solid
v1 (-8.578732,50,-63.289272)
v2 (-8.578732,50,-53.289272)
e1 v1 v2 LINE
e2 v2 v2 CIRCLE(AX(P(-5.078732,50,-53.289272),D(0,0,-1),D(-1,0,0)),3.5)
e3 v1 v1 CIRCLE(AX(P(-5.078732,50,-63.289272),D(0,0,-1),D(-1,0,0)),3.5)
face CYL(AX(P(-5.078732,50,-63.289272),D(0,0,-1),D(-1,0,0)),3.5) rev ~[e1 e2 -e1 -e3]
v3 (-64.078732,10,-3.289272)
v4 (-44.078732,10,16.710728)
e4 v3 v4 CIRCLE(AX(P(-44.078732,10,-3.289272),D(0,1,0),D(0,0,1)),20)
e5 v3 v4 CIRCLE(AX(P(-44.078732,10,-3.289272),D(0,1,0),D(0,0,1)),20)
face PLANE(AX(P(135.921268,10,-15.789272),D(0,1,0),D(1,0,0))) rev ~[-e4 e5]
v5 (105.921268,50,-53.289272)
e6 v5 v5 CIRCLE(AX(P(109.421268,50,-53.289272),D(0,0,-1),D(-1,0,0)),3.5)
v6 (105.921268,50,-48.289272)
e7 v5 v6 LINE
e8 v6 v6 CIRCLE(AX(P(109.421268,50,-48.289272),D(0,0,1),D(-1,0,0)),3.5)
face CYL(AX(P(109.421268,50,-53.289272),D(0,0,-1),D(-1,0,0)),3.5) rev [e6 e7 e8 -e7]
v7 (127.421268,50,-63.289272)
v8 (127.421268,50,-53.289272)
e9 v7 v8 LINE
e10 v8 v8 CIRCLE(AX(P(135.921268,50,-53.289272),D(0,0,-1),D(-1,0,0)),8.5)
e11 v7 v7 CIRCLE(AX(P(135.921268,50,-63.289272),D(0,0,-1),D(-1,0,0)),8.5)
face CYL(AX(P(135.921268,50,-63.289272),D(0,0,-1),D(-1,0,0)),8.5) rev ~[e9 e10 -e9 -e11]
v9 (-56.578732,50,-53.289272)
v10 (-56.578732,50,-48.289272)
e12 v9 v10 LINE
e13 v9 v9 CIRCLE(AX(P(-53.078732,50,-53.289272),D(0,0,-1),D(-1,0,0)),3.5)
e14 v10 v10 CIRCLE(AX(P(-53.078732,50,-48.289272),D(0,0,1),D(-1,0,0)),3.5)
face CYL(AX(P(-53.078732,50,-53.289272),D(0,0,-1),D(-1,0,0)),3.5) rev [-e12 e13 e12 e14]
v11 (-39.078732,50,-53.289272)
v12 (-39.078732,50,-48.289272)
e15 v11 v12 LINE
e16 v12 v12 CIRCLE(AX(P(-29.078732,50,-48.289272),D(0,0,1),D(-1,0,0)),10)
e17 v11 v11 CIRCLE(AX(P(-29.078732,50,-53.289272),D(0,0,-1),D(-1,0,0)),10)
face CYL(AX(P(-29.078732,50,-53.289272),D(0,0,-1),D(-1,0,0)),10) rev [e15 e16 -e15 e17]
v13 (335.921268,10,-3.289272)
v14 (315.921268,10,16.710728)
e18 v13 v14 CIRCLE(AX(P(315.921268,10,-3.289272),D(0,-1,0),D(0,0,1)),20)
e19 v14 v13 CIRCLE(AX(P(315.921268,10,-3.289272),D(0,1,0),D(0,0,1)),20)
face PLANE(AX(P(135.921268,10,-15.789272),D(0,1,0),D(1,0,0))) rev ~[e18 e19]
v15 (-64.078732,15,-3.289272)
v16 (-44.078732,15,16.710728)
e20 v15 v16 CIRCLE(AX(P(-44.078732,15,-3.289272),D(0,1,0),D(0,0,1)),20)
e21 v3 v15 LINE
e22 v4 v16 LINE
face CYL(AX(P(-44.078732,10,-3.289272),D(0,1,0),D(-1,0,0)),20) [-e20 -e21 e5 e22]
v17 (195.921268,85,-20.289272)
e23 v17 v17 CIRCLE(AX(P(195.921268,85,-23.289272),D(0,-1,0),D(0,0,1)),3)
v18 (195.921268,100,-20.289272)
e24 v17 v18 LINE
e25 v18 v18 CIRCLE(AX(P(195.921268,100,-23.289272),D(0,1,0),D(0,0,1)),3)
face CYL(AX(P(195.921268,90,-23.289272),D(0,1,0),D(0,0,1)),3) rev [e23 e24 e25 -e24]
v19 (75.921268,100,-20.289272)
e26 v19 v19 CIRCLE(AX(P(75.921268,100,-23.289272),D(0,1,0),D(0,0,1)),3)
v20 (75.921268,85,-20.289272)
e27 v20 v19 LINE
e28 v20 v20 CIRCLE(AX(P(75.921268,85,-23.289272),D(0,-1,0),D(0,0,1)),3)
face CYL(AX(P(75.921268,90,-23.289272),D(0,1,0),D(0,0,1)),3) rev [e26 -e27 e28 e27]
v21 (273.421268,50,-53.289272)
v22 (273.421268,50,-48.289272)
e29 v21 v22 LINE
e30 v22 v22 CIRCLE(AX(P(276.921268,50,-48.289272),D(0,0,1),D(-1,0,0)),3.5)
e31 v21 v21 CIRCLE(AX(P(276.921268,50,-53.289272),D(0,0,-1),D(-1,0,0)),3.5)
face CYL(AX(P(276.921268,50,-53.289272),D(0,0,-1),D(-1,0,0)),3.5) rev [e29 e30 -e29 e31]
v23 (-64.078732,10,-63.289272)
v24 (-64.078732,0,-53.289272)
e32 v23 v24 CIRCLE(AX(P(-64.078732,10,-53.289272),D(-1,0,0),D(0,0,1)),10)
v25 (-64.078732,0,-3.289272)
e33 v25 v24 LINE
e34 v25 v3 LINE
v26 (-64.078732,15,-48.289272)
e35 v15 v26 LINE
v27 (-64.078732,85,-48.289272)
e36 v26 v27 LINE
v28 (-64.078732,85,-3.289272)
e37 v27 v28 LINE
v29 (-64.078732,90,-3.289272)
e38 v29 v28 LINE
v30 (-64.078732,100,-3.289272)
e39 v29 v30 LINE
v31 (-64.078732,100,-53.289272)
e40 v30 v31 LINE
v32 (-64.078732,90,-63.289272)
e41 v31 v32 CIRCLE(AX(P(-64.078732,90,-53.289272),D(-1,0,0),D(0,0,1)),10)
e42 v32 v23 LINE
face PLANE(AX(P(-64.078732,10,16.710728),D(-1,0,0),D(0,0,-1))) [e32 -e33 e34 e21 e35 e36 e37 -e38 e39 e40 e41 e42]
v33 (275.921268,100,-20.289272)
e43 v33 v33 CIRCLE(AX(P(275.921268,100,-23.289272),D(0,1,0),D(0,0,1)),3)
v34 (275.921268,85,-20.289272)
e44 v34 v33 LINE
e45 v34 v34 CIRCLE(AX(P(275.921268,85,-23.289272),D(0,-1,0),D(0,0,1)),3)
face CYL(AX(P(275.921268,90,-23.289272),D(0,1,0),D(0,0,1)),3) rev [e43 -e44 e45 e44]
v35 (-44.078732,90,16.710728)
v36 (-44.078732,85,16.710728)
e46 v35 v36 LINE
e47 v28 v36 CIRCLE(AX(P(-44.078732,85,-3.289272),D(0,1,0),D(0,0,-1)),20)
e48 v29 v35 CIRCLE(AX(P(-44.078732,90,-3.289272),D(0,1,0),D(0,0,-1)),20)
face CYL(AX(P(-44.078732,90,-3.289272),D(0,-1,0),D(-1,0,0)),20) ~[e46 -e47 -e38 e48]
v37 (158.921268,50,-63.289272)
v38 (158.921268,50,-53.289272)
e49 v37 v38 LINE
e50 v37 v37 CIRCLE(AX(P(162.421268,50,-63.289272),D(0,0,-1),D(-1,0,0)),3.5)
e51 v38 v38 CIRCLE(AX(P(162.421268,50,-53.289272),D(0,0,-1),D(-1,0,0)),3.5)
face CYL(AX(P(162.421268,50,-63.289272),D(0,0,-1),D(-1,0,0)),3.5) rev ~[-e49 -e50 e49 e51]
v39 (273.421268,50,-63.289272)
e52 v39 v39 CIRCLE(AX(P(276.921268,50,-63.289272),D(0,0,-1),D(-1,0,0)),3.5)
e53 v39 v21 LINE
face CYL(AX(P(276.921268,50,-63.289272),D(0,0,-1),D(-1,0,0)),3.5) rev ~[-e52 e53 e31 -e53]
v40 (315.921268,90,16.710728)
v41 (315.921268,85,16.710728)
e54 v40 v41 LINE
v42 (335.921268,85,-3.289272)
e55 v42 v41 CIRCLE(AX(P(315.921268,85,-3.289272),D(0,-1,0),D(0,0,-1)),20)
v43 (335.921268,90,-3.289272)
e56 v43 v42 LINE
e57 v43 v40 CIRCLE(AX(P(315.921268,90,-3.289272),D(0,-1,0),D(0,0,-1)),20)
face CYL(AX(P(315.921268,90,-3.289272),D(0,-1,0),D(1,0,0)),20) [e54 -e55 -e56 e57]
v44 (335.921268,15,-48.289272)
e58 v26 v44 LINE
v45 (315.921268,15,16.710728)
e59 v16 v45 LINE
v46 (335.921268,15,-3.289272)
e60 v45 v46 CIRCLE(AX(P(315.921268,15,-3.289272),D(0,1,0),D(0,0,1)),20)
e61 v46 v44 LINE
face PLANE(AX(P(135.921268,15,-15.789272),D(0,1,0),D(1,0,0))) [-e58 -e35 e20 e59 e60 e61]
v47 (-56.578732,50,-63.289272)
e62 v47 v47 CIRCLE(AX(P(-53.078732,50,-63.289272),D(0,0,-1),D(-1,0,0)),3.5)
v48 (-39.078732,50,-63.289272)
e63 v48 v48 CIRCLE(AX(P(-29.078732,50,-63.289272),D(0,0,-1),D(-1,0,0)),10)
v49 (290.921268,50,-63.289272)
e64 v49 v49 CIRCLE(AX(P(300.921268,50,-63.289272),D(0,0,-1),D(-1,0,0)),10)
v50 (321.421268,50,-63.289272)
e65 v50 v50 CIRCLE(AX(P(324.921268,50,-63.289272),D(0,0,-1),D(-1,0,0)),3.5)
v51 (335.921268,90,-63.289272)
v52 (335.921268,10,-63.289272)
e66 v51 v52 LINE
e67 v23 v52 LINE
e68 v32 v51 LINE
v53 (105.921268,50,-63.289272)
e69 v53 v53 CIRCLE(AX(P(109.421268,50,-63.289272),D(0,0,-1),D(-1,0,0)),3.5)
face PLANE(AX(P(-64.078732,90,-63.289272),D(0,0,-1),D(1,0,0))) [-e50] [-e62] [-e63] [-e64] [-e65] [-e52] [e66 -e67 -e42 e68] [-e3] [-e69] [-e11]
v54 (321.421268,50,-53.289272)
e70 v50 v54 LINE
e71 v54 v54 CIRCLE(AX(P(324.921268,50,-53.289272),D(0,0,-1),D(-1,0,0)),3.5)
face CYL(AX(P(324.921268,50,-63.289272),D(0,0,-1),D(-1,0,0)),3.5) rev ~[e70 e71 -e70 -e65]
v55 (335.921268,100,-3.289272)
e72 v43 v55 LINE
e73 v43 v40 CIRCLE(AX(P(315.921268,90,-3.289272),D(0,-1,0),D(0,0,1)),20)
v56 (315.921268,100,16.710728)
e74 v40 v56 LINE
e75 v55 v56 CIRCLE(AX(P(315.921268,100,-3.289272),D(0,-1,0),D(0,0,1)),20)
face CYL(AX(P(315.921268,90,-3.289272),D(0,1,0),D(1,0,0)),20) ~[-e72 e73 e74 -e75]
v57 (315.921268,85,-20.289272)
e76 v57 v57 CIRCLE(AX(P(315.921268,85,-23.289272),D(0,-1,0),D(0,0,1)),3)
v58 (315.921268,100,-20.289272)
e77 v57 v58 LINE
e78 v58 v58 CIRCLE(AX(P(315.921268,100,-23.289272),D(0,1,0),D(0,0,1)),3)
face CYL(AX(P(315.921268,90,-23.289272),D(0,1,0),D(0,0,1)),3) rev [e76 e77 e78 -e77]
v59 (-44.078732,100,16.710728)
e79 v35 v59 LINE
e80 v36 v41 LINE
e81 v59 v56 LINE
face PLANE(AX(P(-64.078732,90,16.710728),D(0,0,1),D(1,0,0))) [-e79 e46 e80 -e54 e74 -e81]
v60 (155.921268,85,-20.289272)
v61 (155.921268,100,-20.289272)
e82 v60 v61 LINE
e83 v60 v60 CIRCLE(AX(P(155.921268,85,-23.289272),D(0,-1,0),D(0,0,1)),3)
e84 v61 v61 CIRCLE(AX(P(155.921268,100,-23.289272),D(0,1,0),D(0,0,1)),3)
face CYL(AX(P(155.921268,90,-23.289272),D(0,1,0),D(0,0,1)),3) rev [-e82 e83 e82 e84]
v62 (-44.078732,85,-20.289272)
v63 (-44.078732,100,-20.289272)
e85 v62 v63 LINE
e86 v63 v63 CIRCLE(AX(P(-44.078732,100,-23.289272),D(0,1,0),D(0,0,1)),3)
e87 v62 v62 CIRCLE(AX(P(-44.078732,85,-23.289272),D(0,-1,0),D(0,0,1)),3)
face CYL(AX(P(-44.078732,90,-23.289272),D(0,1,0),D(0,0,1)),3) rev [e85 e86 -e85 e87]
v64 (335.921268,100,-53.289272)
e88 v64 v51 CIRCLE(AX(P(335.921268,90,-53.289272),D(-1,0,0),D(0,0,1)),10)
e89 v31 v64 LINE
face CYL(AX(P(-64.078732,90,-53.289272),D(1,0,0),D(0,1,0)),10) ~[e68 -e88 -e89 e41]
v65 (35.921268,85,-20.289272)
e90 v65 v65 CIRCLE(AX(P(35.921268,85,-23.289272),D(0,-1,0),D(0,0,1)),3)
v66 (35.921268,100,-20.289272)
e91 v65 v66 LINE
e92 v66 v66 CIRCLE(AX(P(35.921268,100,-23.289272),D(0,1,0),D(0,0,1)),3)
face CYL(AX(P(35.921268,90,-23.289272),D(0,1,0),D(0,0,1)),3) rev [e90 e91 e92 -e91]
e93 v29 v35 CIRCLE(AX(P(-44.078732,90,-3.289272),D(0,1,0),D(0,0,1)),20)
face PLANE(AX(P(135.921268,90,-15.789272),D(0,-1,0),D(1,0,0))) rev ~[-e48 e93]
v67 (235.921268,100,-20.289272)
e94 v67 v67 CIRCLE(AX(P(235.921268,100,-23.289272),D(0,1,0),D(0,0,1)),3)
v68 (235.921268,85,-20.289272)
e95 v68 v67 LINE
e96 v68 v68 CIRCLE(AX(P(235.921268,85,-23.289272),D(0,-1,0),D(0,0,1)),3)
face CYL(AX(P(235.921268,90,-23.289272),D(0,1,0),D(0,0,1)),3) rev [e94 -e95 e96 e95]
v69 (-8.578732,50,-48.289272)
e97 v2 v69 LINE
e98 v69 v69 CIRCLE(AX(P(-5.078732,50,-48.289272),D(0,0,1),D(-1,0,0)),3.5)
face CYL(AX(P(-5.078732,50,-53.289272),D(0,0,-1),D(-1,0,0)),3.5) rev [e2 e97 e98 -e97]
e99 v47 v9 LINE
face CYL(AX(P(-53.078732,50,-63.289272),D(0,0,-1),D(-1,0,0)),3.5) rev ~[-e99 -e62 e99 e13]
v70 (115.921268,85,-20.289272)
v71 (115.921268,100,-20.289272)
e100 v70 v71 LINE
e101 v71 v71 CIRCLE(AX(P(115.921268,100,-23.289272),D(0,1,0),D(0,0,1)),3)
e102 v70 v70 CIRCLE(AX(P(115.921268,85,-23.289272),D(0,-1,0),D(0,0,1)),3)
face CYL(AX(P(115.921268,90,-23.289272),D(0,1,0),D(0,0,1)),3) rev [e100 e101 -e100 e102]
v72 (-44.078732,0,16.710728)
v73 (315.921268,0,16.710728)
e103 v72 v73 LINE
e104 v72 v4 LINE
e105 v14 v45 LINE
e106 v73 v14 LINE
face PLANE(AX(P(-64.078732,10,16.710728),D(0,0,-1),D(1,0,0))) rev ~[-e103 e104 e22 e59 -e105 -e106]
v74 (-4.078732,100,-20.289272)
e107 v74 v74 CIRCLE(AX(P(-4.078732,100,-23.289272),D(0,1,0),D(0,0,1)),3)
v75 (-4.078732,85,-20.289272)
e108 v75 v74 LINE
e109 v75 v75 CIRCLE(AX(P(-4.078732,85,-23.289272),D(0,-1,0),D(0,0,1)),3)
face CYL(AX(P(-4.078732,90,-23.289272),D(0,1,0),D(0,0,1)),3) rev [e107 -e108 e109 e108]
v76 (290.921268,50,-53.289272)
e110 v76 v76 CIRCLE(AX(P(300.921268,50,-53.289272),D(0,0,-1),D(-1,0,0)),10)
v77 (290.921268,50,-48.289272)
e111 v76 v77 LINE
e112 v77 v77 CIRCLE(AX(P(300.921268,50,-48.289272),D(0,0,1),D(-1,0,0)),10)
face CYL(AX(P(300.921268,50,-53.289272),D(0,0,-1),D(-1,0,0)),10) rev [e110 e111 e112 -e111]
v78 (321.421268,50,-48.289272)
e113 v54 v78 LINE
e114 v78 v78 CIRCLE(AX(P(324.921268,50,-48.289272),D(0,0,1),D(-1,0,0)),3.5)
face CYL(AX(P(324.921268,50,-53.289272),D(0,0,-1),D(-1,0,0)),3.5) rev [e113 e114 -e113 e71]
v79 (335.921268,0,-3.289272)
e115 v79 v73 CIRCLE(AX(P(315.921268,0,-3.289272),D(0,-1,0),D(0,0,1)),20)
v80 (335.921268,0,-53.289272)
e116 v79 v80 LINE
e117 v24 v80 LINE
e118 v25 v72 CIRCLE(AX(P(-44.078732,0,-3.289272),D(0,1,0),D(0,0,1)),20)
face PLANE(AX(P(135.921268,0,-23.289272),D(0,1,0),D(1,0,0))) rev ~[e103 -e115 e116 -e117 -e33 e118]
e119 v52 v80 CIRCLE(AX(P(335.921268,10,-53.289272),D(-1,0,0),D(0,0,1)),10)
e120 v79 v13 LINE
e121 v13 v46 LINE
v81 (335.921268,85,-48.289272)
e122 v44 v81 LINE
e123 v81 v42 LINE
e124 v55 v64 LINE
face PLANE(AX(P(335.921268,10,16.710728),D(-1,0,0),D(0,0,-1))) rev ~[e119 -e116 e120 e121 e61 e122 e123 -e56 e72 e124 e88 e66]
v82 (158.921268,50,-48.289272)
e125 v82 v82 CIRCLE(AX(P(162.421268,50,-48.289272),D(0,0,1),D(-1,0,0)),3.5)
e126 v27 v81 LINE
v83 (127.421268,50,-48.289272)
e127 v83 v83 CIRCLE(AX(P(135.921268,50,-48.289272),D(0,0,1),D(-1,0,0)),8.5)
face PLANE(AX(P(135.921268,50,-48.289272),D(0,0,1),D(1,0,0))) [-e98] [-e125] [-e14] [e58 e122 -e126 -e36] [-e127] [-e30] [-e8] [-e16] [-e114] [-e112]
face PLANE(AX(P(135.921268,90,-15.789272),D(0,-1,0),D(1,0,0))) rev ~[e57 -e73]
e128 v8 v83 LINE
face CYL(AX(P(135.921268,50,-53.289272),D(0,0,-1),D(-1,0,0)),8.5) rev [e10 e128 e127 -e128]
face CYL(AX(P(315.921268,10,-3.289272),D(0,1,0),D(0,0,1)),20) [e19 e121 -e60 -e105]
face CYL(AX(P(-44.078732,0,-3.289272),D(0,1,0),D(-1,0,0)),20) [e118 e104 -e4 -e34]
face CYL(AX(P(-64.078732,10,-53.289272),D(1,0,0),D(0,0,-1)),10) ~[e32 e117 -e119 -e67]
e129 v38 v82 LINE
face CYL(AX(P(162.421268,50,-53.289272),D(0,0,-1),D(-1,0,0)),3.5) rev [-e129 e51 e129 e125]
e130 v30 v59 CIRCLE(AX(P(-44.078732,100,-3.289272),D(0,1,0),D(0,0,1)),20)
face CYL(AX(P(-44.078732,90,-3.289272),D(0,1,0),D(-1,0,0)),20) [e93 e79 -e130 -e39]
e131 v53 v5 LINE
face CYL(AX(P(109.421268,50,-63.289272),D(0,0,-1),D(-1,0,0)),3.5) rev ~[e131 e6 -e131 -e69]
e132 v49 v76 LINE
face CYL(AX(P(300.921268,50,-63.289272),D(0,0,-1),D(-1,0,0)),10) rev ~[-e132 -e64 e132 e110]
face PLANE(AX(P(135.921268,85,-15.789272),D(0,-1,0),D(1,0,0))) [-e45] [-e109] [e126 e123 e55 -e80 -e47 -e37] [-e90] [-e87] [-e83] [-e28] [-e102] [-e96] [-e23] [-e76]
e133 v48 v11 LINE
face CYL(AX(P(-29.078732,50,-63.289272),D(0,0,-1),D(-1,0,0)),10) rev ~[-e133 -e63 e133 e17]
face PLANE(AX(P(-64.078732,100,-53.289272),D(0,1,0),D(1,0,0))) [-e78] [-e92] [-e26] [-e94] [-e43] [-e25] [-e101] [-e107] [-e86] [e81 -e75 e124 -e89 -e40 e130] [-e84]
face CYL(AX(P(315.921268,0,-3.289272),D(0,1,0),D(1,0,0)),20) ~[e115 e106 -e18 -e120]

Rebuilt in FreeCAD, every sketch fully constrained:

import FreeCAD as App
import Part
import Sketcher
from FreeCAD import Vector
Q = App.Units.Quantity


def edges_at(feature, points):
    """Names of the edges that pass closest to the given points."""
    edges = feature.Shape.Edges
    near = lambda p: min(range(len(edges)), key=lambda i: edges[i].distToShape(Part.Vertex(*p))[0])
    return sorted({f"Edge{near(p) + 1}" for p in points})

doc = App.newDocument("Part")
params = doc.addObject("Spreadsheet::Sheet", "Params")
for row, (alias, value) in enumerate([
    ("sketch1_width", "400 mm"),
    ("sketch1_height", "80 mm"),
    ("pad1_length", "10 mm"),
    ("sketch2_width", "400 mm"),
    ("sketch2_height", "10 mm"),
    ("pad2_length", "80 mm"),
    ("sketch3_width", "400 mm"),
    ("sketch3_height", "10 mm"),
    ("pad3_length", "10 mm"),
    ("sketch4_width", "400 mm"),
    ("sketch4_height", "10 mm"),
    ("pad4_length", "70 mm"),
    ("fillet_radius", "20 mm"),
    ("fillet2_radius", "10 mm"),
    ("sketch5_diameter", "17 mm"),
    ("sketch5_diameter2", "7 mm"),
    ("sketch5_diameter3", "20 mm"),
    ("pocket1_length", "10 mm"),
    ("sketch6_diameter", "6 mm"),
    ("sketch7_diameter", "6 mm"),
    ("sketch8_diameter", "6 mm"),
    ("sketch9_diameter", "6 mm"),
    ("sketch10_diameter", "6 mm"),
    ("sketch11_diameter", "6 mm"),
    ("sketch12_diameter", "6 mm"),
    ("sketch13_diameter", "6 mm"),
    ("sketch14_diameter", "6 mm"),
    ("sketch15_diameter", "6 mm"),
    ("sketch16_diameter", "7 mm"),
    ("sketch16_diameter2", "20 mm"),
    ("sketch16_diameter3", "17 mm"),
    ("sketch16_width", "400 mm"),
    ("sketch16_height", "80 mm"),
    ("pad5_length", "5 mm"),
    ("sketch17_diameter", "6 mm"),
    ("sketch17_width", "400 mm"),
    ("sketch17_height", "65 mm"),
    ("pad6_length", "5 mm"),
    ("sketch18_width", "400 mm"),
    ("sketch18_height", "65 mm"),
    ("pad7_length", "5 mm"),
    ("fillet3_radius", "20 mm"),
], start=1):
    params.set(f"A{row}", alias)
    params.set(f"B{row}", "=" + value)
    params.setAlias(f"B{row}", alias)

body = doc.addObject("PartDesign::Body", "Body")

# Sketch on XZ plane
sketch1 = body.newObject("Sketcher::SketchObject", "Sketch")
sketch1.AttachmentSupport = (doc.getObject("XZ_Plane"), [""])
sketch1.MapMode = "FlatFace"
sketch1.addGeometry([
    Part.LineSegment(Vector(-64, -63, 0), Vector(-64, 17, 0)),
    Part.LineSegment(Vector(-64, 17, 0), Vector(336, 17, 0)),
    Part.LineSegment(Vector(336, 17, 0), Vector(336, -63, 0)),
    Part.LineSegment(Vector(336, -63, 0), Vector(-64, -63, 0)),
], False)
sketch1.addConstraint([
    Sketcher.Constraint("Coincident", 0, 2, 1, 1),
    Sketcher.Constraint("Coincident", 1, 2, 2, 1),
    Sketcher.Constraint("Coincident", 2, 2, 3, 1),
    Sketcher.Constraint("Coincident", 3, 2, 0, 1),
    Sketcher.Constraint("Vertical", 0),
    Sketcher.Constraint("Horizontal", 1),
    Sketcher.Constraint("Vertical", 2),
    Sketcher.Constraint("Horizontal", 3),
    Sketcher.Constraint("DistanceX", 1, 1, 1, 2, Q("400 mm")),
    Sketcher.Constraint("DistanceY", 0, 1, 0, 2, Q("80 mm")),
    Sketcher.Constraint("DistanceX", 0, 2, -1, 1, Q("64.078732 mm")),
    Sketcher.Constraint("DistanceY", -1, 1, 0, 2, Q("16.710728 mm")),
])
sketch1.setExpression("Constraints[8]", "Params.sketch1_width")
sketch1.setExpression("Constraints[9]", "Params.sketch1_height")
pad1 = body.newObject("PartDesign::Pad", "Pad")
pad1.Profile = sketch1
pad1.setExpression("Length", "Params.pad1_length")
pad1.Reversed = True

# Sketch on XZ plane
sketch2 = body.newObject("Sketcher::SketchObject", "Sketch001")
sketch2.AttachmentSupport = (doc.getObject("XZ_Plane"), [""])
sketch2.MapMode = "FlatFace"
sketch2.AttachmentOffset = App.Placement(Vector(0, 0, -10), App.Rotation())
sketch2.addGeometry([
    Part.LineSegment(Vector(-64, -63, 0), Vector(-64, -53, 0)),
    Part.LineSegment(Vector(-64, -53, 0), Vector(336, -53, 0)),
    Part.LineSegment(Vector(336, -53, 0), Vector(336, -63, 0)),
    Part.LineSegment(Vector(336, -63, 0), Vector(-64, -63, 0)),
], False)
sketch2.addConstraint([
    Sketcher.Constraint("Coincident", 0, 2, 1, 1),
    Sketcher.Constraint("Coincident", 1, 2, 2, 1),
    Sketcher.Constraint("Coincident", 2, 2, 3, 1),
    Sketcher.Constraint("Coincident", 3, 2, 0, 1),
    Sketcher.Constraint("Vertical", 0),
    Sketcher.Constraint("Horizontal", 1),
    Sketcher.Constraint("Vertical", 2),
    Sketcher.Constraint("Horizontal", 3),
    Sketcher.Constraint("DistanceX", 1, 1, 1, 2, Q("400 mm")),
    Sketcher.Constraint("DistanceY", 0, 1, 0, 2, Q("10 mm")),
    Sketcher.Constraint("DistanceX", 0, 2, -1, 1, Q("64.078732 mm")),
    Sketcher.Constraint("DistanceY", 0, 2, -1, 1, Q("53.289272 mm")),
])
sketch2.setExpression("Constraints[8]", "Params.sketch2_width")
sketch2.setExpression("Constraints[9]", "Params.sketch2_height")
pad2 = body.newObject("PartDesign::Pad", "Pad001")
pad2.Profile = sketch2
pad2.setExpression("Length", "Params.pad2_length")
pad2.Reversed = True

# Sketch on XZ plane
sketch3 = body.newObject("Sketcher::SketchObject", "Sketch002")
sketch3.AttachmentSupport = (doc.getObject("XZ_Plane"), [""])
sketch3.MapMode = "FlatFace"
sketch3.AttachmentOffset = App.Placement(Vector(0, 0, -90), App.Rotation())
sketch3.addGeometry([
    Part.LineSegment(Vector(-64, -63, 0), Vector(-64, -53, 0)),
    Part.LineSegment(Vector(-64, -53, 0), Vector(336, -53, 0)),
    Part.LineSegment(Vector(336, -53, 0), Vector(336, -63, 0)),
    Part.LineSegment(Vector(336, -63, 0), Vector(-64, -63, 0)),
], False)
sketch3.addConstraint([
    Sketcher.Constraint("Coincident", 0, 2, 1, 1),
    Sketcher.Constraint("Coincident", 1, 2, 2, 1),
    Sketcher.Constraint("Coincident", 2, 2, 3, 1),
    Sketcher.Constraint("Coincident", 3, 2, 0, 1),
    Sketcher.Constraint("Vertical", 0),
    Sketcher.Constraint("Horizontal", 1),
    Sketcher.Constraint("Vertical", 2),
    Sketcher.Constraint("Horizontal", 3),
    Sketcher.Constraint("DistanceX", 1, 1, 1, 2, Q("400 mm")),
    Sketcher.Constraint("DistanceY", 0, 1, 0, 2, Q("10 mm")),
    Sketcher.Constraint("DistanceX", 0, 2, -1, 1, Q("64.078732 mm")),
    Sketcher.Constraint("DistanceY", 0, 2, -1, 1, Q("53.289272 mm")),
])
sketch3.setExpression("Constraints[8]", "Params.sketch3_width")
sketch3.setExpression("Constraints[9]", "Params.sketch3_height")
pad3 = body.newObject("PartDesign::Pad", "Pad002")
pad3.Profile = sketch3
pad3.setExpression("Length", "Params.pad3_length")
pad3.Reversed = True

# Sketch on XY plane
sketch4 = body.newObject("Sketcher::SketchObject", "Sketch003")
sketch4.AttachmentSupport = (doc.getObject("XY_Plane"), [""])
sketch4.MapMode = "FlatFace"
sketch4.AttachmentOffset = App.Placement(Vector(0, 0, -53.289272), App.Rotation())
sketch4.addGeometry([
    Part.LineSegment(Vector(-64, 100, 0), Vector(-64, 90, 0)),
    Part.LineSegment(Vector(-64, 90, 0), Vector(336, 90, 0)),
    Part.LineSegment(Vector(336, 90, 0), Vector(336, 100, 0)),
    Part.LineSegment(Vector(336, 100, 0), Vector(-64, 100, 0)),
], False)
sketch4.addConstraint([
    Sketcher.Constraint("Coincident", 0, 2, 1, 1),
    Sketcher.Constraint("Coincident", 1, 2, 2, 1),
    Sketcher.Constraint("Coincident", 2, 2, 3, 1),
    Sketcher.Constraint("Coincident", 3, 2, 0, 1),
    Sketcher.Constraint("Vertical", 0),
    Sketcher.Constraint("Horizontal", 1),
    Sketcher.Constraint("Vertical", 2),
    Sketcher.Constraint("Horizontal", 3),
    Sketcher.Constraint("DistanceX", 1, 1, 1, 2, Q("400 mm")),
    Sketcher.Constraint("DistanceY", 0, 2, 0, 1, Q("10 mm")),
    Sketcher.Constraint("DistanceY", -1, 1, 0, 2, Q("90 mm")),
    Sketcher.Constraint("DistanceX", 0, 2, -1, 1, Q("64.078732 mm")),
])
sketch4.setExpression("Constraints[8]", "Params.sketch4_width")
sketch4.setExpression("Constraints[9]", "Params.sketch4_height")
pad4 = body.newObject("PartDesign::Pad", "Pad003")
pad4.Profile = sketch4
pad4.setExpression("Length", "Params.pad4_length")
doc.recompute()

fillet = body.newObject("PartDesign::Fillet", "Fillet")
fillet.Base = (pad4, edges_at(pad4, [
    (-64.079, 95, 16.711),
    (335.921, 95, 16.711),
    (-64.079, 5, 16.711),
    (335.921, 5, 16.711),
]))
fillet.setExpression("Radius", "Params.fillet_radius")
doc.recompute()

fillet2 = body.newObject("PartDesign::Fillet", "Fillet001")
fillet2.Base = (fillet, edges_at(fillet, [(135.921, 100, -63.289), (135.921, 0, -63.289)]))
fillet2.setExpression("Radius", "Params.fillet2_radius")

# Sketch on XY plane
sketch5 = body.newObject("Sketcher::SketchObject", "Sketch004")
sketch5.AttachmentSupport = (doc.getObject("XY_Plane"), [""])
sketch5.MapMode = "FlatFace"
sketch5.AttachmentOffset = App.Placement(Vector(0, 0, -63.289272), App.Rotation())
sketch5.addGeometry([
    Part.Circle(Vector(135.9, 50, 0), Vector(0, 0, 1), 8.5),  # 0
    Part.Circle(Vector(109.4, 50, 0), Vector(0, 0, 1), 3.5),  # 1
    Part.Circle(Vector(162.4, 50, 0), Vector(0, 0, 1), 3.5),  # 2
    Part.Circle(Vector(324.9, 50, 0), Vector(0, 0, 1), 3.5),  # 3
    Part.Circle(Vector(300.9, 50, 0), Vector(0, 0, 1), 10),  # 4
    Part.Circle(Vector(276.9, 50, 0), Vector(0, 0, 1), 3.5),  # 5
    Part.Circle(Vector(-53.1, 50, 0), Vector(0, 0, 1), 3.5),  # 6
    Part.Circle(Vector(-29.1, 50, 0), Vector(0, 0, 1), 10),  # 7
    Part.Circle(Vector(-5.1, 50, 0), Vector(0, 0, 1), 3.5),  # 8
], False)
sketch5.addConstraint([
    Sketcher.Constraint("Equal", 1, 2),
    Sketcher.Constraint("Equal", 2, 3),
    Sketcher.Constraint("Equal", 3, 5),
    Sketcher.Constraint("Equal", 5, 6),
    Sketcher.Constraint("Equal", 4, 7),
    Sketcher.Constraint("Equal", 6, 8),
    Sketcher.Constraint("Horizontal", 0, 3, 1, 3),
    Sketcher.Constraint("Horizontal", 1, 3, 2, 3),
    Sketcher.Constraint("Horizontal", 2, 3, 3, 3),
    Sketcher.Constraint("Horizontal", 3, 3, 4, 3),
    Sketcher.Constraint("Horizontal", 4, 3, 5, 3),
    Sketcher.Constraint("Horizontal", 5, 3, 6, 3),
    Sketcher.Constraint("Horizontal", 6, 3, 7, 3),
    Sketcher.Constraint("Horizontal", 7, 3, 8, 3),
    Sketcher.Constraint("Diameter", 0, Q("17 mm")),
    Sketcher.Constraint("Diameter", 1, Q("7 mm")),
    Sketcher.Constraint("Diameter", 4, Q("20 mm")),
    Sketcher.Constraint("DistanceY", -1, 1, 0, 3, Q("50 mm")),
    Sketcher.Constraint("DistanceX", 1, 3, 2, 3, Q("53 mm")),
    Sketcher.Constraint("DistanceX", 0, 3, 3, 3, Q("189 mm")),
    Sketcher.Constraint("DistanceX", 4, 3, 3, 3, Q("24 mm")),
    Sketcher.Constraint("DistanceX", 5, 3, 4, 3, Q("24 mm")),
    Sketcher.Constraint("DistanceX", 6, 3, 0, 3, Q("189 mm")),
    Sketcher.Constraint("DistanceX", 6, 3, 7, 3, Q("24 mm")),
    Sketcher.Constraint("DistanceX", 7, 3, 8, 3, Q("24 mm")),
    Sketcher.Constraint("DistanceX", 1, 3, 0, 3, Q("26.5 mm")),
    Sketcher.Constraint("DistanceX", -1, 1, 0, 3, Q("135.921268 mm")),
])
sketch5.setExpression("Constraints[14]", "Params.sketch5_diameter")
sketch5.setExpression("Constraints[15]", "Params.sketch5_diameter2")
sketch5.setExpression("Constraints[16]", "Params.sketch5_diameter3")
pocket1 = body.newObject("PartDesign::Pocket", "Pocket")
pocket1.Profile = sketch5
pocket1.setExpression("Length", "Params.pocket1_length")
pocket1.Reversed = True

# Sketch on XZ plane
sketch6 = body.newObject("Sketcher::SketchObject", "Sketch005")
sketch6.AttachmentSupport = (doc.getObject("XZ_Plane"), [""])
sketch6.MapMode = "FlatFace"
sketch6.AttachmentOffset = App.Placement(Vector(0, 0, -100), App.Rotation())
sketch6.addGeometry(Part.Circle(Vector(-44.1, -23.3, 0), Vector(0, 0, 1), 3), False)
sketch6.addConstraint([
    Sketcher.Constraint("Diameter", 0, Q("6 mm")),
    Sketcher.Constraint("DistanceX", 0, 3, -1, 1, Q("44.078732 mm")),
    Sketcher.Constraint("DistanceY", 0, 3, -1, 1, Q("23.289272 mm")),
])
sketch6.setExpression("Constraints[0]", "Params.sketch6_diameter")
pocket2 = body.newObject("PartDesign::Pocket", "Pocket001")
pocket2.Profile = sketch6
pocket2.Type = "UpToFirst"
pocket2.Reversed = True

# Sketch on XZ plane
sketch7 = body.newObject("Sketcher::SketchObject", "Sketch006")
sketch7.AttachmentSupport = (doc.getObject("XZ_Plane"), [""])
sketch7.MapMode = "FlatFace"
sketch7.AttachmentOffset = App.Placement(Vector(0, 0, -100), App.Rotation())
sketch7.addGeometry(Part.Circle(Vector(-4.1, -23.3, 0), Vector(0, 0, 1), 3), False)
sketch7.addConstraint([
    Sketcher.Constraint("Diameter", 0, Q("6 mm")),
    Sketcher.Constraint("DistanceX", 0, 3, -1, 1, Q("4.078732 mm")),
    Sketcher.Constraint("DistanceY", 0, 3, -1, 1, Q("23.289272 mm")),
])
sketch7.setExpression("Constraints[0]", "Params.sketch7_diameter")
pocket3 = body.newObject("PartDesign::Pocket", "Pocket002")
pocket3.Profile = sketch7
pocket3.Type = "UpToFirst"
pocket3.Reversed = True

# Sketch on XZ plane
sketch8 = body.newObject("Sketcher::SketchObject", "Sketch007")
sketch8.AttachmentSupport = (doc.getObject("XZ_Plane"), [""])
sketch8.MapMode = "FlatFace"
sketch8.AttachmentOffset = App.Placement(Vector(0, 0, -100), App.Rotation())
sketch8.addGeometry(Part.Circle(Vector(35.9, -23.3, 0), Vector(0, 0, 1), 3), False)
sketch8.addConstraint([
    Sketcher.Constraint("Diameter", 0, Q("6 mm")),
    Sketcher.Constraint("DistanceX", -1, 1, 0, 3, Q("35.921268 mm")),
    Sketcher.Constraint("DistanceY", 0, 3, -1, 1, Q("23.289272 mm")),
])
sketch8.setExpression("Constraints[0]", "Params.sketch8_diameter")
pocket4 = body.newObject("PartDesign::Pocket", "Pocket003")
pocket4.Profile = sketch8
pocket4.Type = "UpToFirst"
pocket4.Reversed = True

# Sketch on XZ plane
sketch9 = body.newObject("Sketcher::SketchObject", "Sketch008")
sketch9.AttachmentSupport = (doc.getObject("XZ_Plane"), [""])
sketch9.MapMode = "FlatFace"
sketch9.AttachmentOffset = App.Placement(Vector(0, 0, -100), App.Rotation())
sketch9.addGeometry(Part.Circle(Vector(75.9, -23.3, 0), Vector(0, 0, 1), 3), False)
sketch9.addConstraint([
    Sketcher.Constraint("Diameter", 0, Q("6 mm")),
    Sketcher.Constraint("DistanceX", -1, 1, 0, 3, Q("75.921268 mm")),
    Sketcher.Constraint("DistanceY", 0, 3, -1, 1, Q("23.289272 mm")),
])
sketch9.setExpression("Constraints[0]", "Params.sketch9_diameter")
pocket5 = body.newObject("PartDesign::Pocket", "Pocket004")
pocket5.Profile = sketch9
pocket5.Type = "UpToFirst"
pocket5.Reversed = True

# Sketch on XZ plane
sketch10 = body.newObject("Sketcher::SketchObject", "Sketch009")
sketch10.AttachmentSupport = (doc.getObject("XZ_Plane"), [""])
sketch10.MapMode = "FlatFace"
sketch10.AttachmentOffset = App.Placement(Vector(0, 0, -100), App.Rotation())
sketch10.addGeometry(Part.Circle(Vector(115.9, -23.3, 0), Vector(0, 0, 1), 3), False)
sketch10.addConstraint([
    Sketcher.Constraint("Diameter", 0, Q("6 mm")),
    Sketcher.Constraint("DistanceX", -1, 1, 0, 3, Q("115.921268 mm")),
    Sketcher.Constraint("DistanceY", 0, 3, -1, 1, Q("23.289272 mm")),
])
sketch10.setExpression("Constraints[0]", "Params.sketch10_diameter")
pocket6 = body.newObject("PartDesign::Pocket", "Pocket005")
pocket6.Profile = sketch10
pocket6.Type = "UpToFirst"
pocket6.Reversed = True

# Sketch on XZ plane
sketch11 = body.newObject("Sketcher::SketchObject", "Sketch010")
sketch11.AttachmentSupport = (doc.getObject("XZ_Plane"), [""])
sketch11.MapMode = "FlatFace"
sketch11.AttachmentOffset = App.Placement(Vector(0, 0, -100), App.Rotation())
sketch11.addGeometry(Part.Circle(Vector(155.9, -23.3, 0), Vector(0, 0, 1), 3), False)
sketch11.addConstraint([
    Sketcher.Constraint("Diameter", 0, Q("6 mm")),
    Sketcher.Constraint("DistanceX", -1, 1, 0, 3, Q("155.921268 mm")),
    Sketcher.Constraint("DistanceY", 0, 3, -1, 1, Q("23.289272 mm")),
])
sketch11.setExpression("Constraints[0]", "Params.sketch11_diameter")
pocket7 = body.newObject("PartDesign::Pocket", "Pocket006")
pocket7.Profile = sketch11
pocket7.Type = "UpToFirst"
pocket7.Reversed = True

# Sketch on XZ plane
sketch12 = body.newObject("Sketcher::SketchObject", "Sketch011")
sketch12.AttachmentSupport = (doc.getObject("XZ_Plane"), [""])
sketch12.MapMode = "FlatFace"
sketch12.AttachmentOffset = App.Placement(Vector(0, 0, -100), App.Rotation())
sketch12.addGeometry(Part.Circle(Vector(195.9, -23.3, 0), Vector(0, 0, 1), 3), False)
sketch12.addConstraint([
    Sketcher.Constraint("Diameter", 0, Q("6 mm")),
    Sketcher.Constraint("DistanceX", -1, 1, 0, 3, Q("195.921268 mm")),
    Sketcher.Constraint("DistanceY", 0, 3, -1, 1, Q("23.289272 mm")),
])
sketch12.setExpression("Constraints[0]", "Params.sketch12_diameter")
pocket8 = body.newObject("PartDesign::Pocket", "Pocket007")
pocket8.Profile = sketch12
pocket8.Type = "UpToFirst"
pocket8.Reversed = True

# Sketch on XZ plane
sketch13 = body.newObject("Sketcher::SketchObject", "Sketch012")
sketch13.AttachmentSupport = (doc.getObject("XZ_Plane"), [""])
sketch13.MapMode = "FlatFace"
sketch13.AttachmentOffset = App.Placement(Vector(0, 0, -100), App.Rotation())
sketch13.addGeometry(Part.Circle(Vector(235.9, -23.3, 0), Vector(0, 0, 1), 3), False)
sketch13.addConstraint([
    Sketcher.Constraint("Diameter", 0, Q("6 mm")),
    Sketcher.Constraint("DistanceX", -1, 1, 0, 3, Q("235.921268 mm")),
    Sketcher.Constraint("DistanceY", 0, 3, -1, 1, Q("23.289272 mm")),
])
sketch13.setExpression("Constraints[0]", "Params.sketch13_diameter")
pocket9 = body.newObject("PartDesign::Pocket", "Pocket008")
pocket9.Profile = sketch13
pocket9.Type = "UpToFirst"
pocket9.Reversed = True

# Sketch on XZ plane
sketch14 = body.newObject("Sketcher::SketchObject", "Sketch013")
sketch14.AttachmentSupport = (doc.getObject("XZ_Plane"), [""])
sketch14.MapMode = "FlatFace"
sketch14.AttachmentOffset = App.Placement(Vector(0, 0, -100), App.Rotation())
sketch14.addGeometry(Part.Circle(Vector(275.9, -23.3, 0), Vector(0, 0, 1), 3), False)
sketch14.addConstraint([
    Sketcher.Constraint("Diameter", 0, Q("6 mm")),
    Sketcher.Constraint("DistanceX", -1, 1, 0, 3, Q("275.921268 mm")),
    Sketcher.Constraint("DistanceY", 0, 3, -1, 1, Q("23.289272 mm")),
])
sketch14.setExpression("Constraints[0]", "Params.sketch14_diameter")
pocket10 = body.newObject("PartDesign::Pocket", "Pocket009")
pocket10.Profile = sketch14
pocket10.Type = "UpToFirst"
pocket10.Reversed = True

# Sketch on XZ plane
sketch15 = body.newObject("Sketcher::SketchObject", "Sketch014")
sketch15.AttachmentSupport = (doc.getObject("XZ_Plane"), [""])
sketch15.MapMode = "FlatFace"
sketch15.AttachmentOffset = App.Placement(Vector(0, 0, -100), App.Rotation())
sketch15.addGeometry(Part.Circle(Vector(315.9, -23.3, 0), Vector(0, 0, 1), 3), False)
sketch15.addConstraint([
    Sketcher.Constraint("Diameter", 0, Q("6 mm")),
    Sketcher.Constraint("DistanceX", -1, 1, 0, 3, Q("315.921268 mm")),
    Sketcher.Constraint("DistanceY", 0, 3, -1, 1, Q("23.289272 mm")),
])
sketch15.setExpression("Constraints[0]", "Params.sketch15_diameter")
pocket11 = body.newObject("PartDesign::Pocket", "Pocket010")
pocket11.Profile = sketch15
pocket11.Type = "UpToFirst"
pocket11.Reversed = True

# Sketch on XY plane
sketch16 = body.newObject("Sketcher::SketchObject", "Sketch015")
sketch16.AttachmentSupport = (doc.getObject("XY_Plane"), [""])
sketch16.MapMode = "FlatFace"
sketch16.AttachmentOffset = App.Placement(Vector(0, 0, -53.289272), App.Rotation())
sketch16.addGeometry([
    Part.LineSegment(Vector(-64.1, 90, 0), Vector(-64.1, 10, 0)),  # 0
    Part.LineSegment(Vector(-64.1, 10, 0), Vector(335.9, 10, 0)),  # 1
    Part.LineSegment(Vector(335.9, 10, 0), Vector(335.9, 90, 0)),  # 2
    Part.LineSegment(Vector(335.9, 90, 0), Vector(-64.1, 90, 0)),  # 3
    Part.Circle(Vector(-53.1, 50, 0), Vector(0, 0, 1), 3.5),  # 4
    Part.Circle(Vector(-29.1, 50, 0), Vector(0, 0, 1), 10),  # 5
    Part.Circle(Vector(-5.1, 50, 0), Vector(0, 0, 1), 3.5),  # 6
    Part.Circle(Vector(109.4, 50, 0), Vector(0, 0, 1), 3.5),  # 7
    Part.Circle(Vector(135.9, 50, 0), Vector(0, 0, 1), 8.5),  # 8
    Part.Circle(Vector(162.4, 50, 0), Vector(0, 0, 1), 3.5),  # 9
    Part.Circle(Vector(276.9, 50, 0), Vector(0, 0, 1), 3.5),  # 10
    Part.Circle(Vector(300.9, 50, 0), Vector(0, 0, 1), 10),  # 11
    Part.Circle(Vector(324.9, 50, 0), Vector(0, 0, 1), 3.5),  # 12
], False)
sketch16.addConstraint([
    Sketcher.Constraint("Coincident", 0, 2, 1, 1),
    Sketcher.Constraint("Coincident", 1, 2, 2, 1),
    Sketcher.Constraint("Coincident", 2, 2, 3, 1),
    Sketcher.Constraint("Coincident", 3, 2, 0, 1),
    Sketcher.Constraint("Vertical", 0),
    Sketcher.Constraint("Horizontal", 1),
    Sketcher.Constraint("Vertical", 2),
    Sketcher.Constraint("Horizontal", 3),
    Sketcher.Constraint("Equal", 4, 6),
    Sketcher.Constraint("Equal", 6, 7),
    Sketcher.Constraint("Equal", 7, 9),
    Sketcher.Constraint("Equal", 9, 10),
    Sketcher.Constraint("Equal", 5, 11),
    Sketcher.Constraint("Equal", 10, 12),
    Sketcher.Constraint("Horizontal", 4, 3, 5, 3),
    Sketcher.Constraint("Horizontal", 5, 3, 6, 3),
    Sketcher.Constraint("Horizontal", 6, 3, 7, 3),
    Sketcher.Constraint("Horizontal", 7, 3, 8, 3),
    Sketcher.Constraint("Horizontal", 8, 3, 9, 3),
    Sketcher.Constraint("Horizontal", 9, 3, 10, 3),
    Sketcher.Constraint("Horizontal", 10, 3, 11, 3),
    Sketcher.Constraint("Horizontal", 11, 3, 12, 3),
    Sketcher.Constraint("Diameter", 4, Q("7 mm")),
    Sketcher.Constraint("Diameter", 5, Q("20 mm")),
    Sketcher.Constraint("Diameter", 8, Q("17 mm")),
    Sketcher.Constraint("DistanceX", 1, 1, 1, 2, Q("400 mm")),
    Sketcher.Constraint("DistanceY", 0, 2, 0, 1, Q("80 mm")),
    Sketcher.Constraint("DistanceY", -1, 1, 4, 3, Q("50 mm")),
    Sketcher.Constraint("DistanceY", -1, 1, 0, 2, Q("10 mm")),
    Sketcher.Constraint("DistanceX", 4, 3, 5, 3, Q("24 mm")),
    Sketcher.Constraint("DistanceX", 5, 3, 6, 3, Q("24 mm")),
    Sketcher.Constraint("DistanceX", 6, 3, 8, 3, Q("141 mm")),
    Sketcher.Constraint("DistanceX", 7, 3, 9, 3, Q("53 mm")),
    Sketcher.Constraint("DistanceX", 8, 3, 10, 3, Q("141 mm")),
    Sketcher.Constraint("DistanceX", 10, 3, 11, 3, Q("24 mm")),
    Sketcher.Constraint("DistanceX", 11, 3, 12, 3, Q("24 mm")),
    Sketcher.Constraint("DistanceX", 0, 2, 4, 3, Q("11 mm")),
    Sketcher.Constraint("DistanceX", 6, 3, 7, 3, Q("114.5 mm")),
    Sketcher.Constraint("DistanceX", 4, 3, -1, 1, Q("53.078732 mm")),
])
sketch16.setExpression("Constraints[22]", "Params.sketch16_diameter")
sketch16.setExpression("Constraints[23]", "Params.sketch16_diameter2")
sketch16.setExpression("Constraints[24]", "Params.sketch16_diameter3")
sketch16.setExpression("Constraints[25]", "Params.sketch16_width")
sketch16.setExpression("Constraints[26]", "Params.sketch16_height")
pad5 = body.newObject("PartDesign::Pad", "Pad004")
pad5.Profile = sketch16
pad5.setExpression("Length", "Params.pad5_length")

# Sketch on XZ plane
sketch17 = body.newObject("Sketcher::SketchObject", "Sketch016")
sketch17.AttachmentSupport = (doc.getObject("XZ_Plane"), [""])
sketch17.MapMode = "FlatFace"
sketch17.AttachmentOffset = App.Placement(Vector(0, 0, -90), App.Rotation())
sketch17.addGeometry([
    Part.LineSegment(Vector(-64.1, 16.7, 0), Vector(-64.1, -48.3, 0)),  # 0
    Part.LineSegment(Vector(-64.1, -48.3, 0), Vector(335.9, -48.3, 0)),  # 1
    Part.LineSegment(Vector(335.9, -48.3, 0), Vector(335.9, 16.7, 0)),  # 2
    Part.LineSegment(Vector(335.9, 16.7, 0), Vector(-64.1, 16.7, 0)),  # 3
    Part.Circle(Vector(-44.1, -23.3, 0), Vector(0, 0, 1), 3),  # 4
    Part.Circle(Vector(-4.1, -23.3, 0), Vector(0, 0, 1), 3),  # 5
    Part.Circle(Vector(35.9, -23.3, 0), Vector(0, 0, 1), 3),  # 6
    Part.Circle(Vector(75.9, -23.3, 0), Vector(0, 0, 1), 3),  # 7
    Part.Circle(Vector(115.9, -23.3, 0), Vector(0, 0, 1), 3),  # 8
    Part.Circle(Vector(155.9, -23.3, 0), Vector(0, 0, 1), 3),  # 9
    Part.Circle(Vector(195.9, -23.3, 0), Vector(0, 0, 1), 3),  # 10
    Part.Circle(Vector(235.9, -23.3, 0), Vector(0, 0, 1), 3),  # 11
    Part.Circle(Vector(275.9, -23.3, 0), Vector(0, 0, 1), 3),  # 12
    Part.Circle(Vector(315.9, -23.3, 0), Vector(0, 0, 1), 3),  # 13
], False)
sketch17.addConstraint([
    Sketcher.Constraint("Coincident", 0, 2, 1, 1),
    Sketcher.Constraint("Coincident", 1, 2, 2, 1),
    Sketcher.Constraint("Coincident", 2, 2, 3, 1),
    Sketcher.Constraint("Coincident", 3, 2, 0, 1),
    Sketcher.Constraint("Vertical", 0),
    Sketcher.Constraint("Horizontal", 1),
    Sketcher.Constraint("Vertical", 2),
    Sketcher.Constraint("Horizontal", 3),
    Sketcher.Constraint("Equal", 4, 5),
    Sketcher.Constraint("Equal", 5, 6),
    Sketcher.Constraint("Equal", 6, 7),
    Sketcher.Constraint("Equal", 7, 8),
    Sketcher.Constraint("Equal", 8, 9),
    Sketcher.Constraint("Equal", 9, 10),
    Sketcher.Constraint("Equal", 10, 11),
    Sketcher.Constraint("Equal", 11, 12),
    Sketcher.Constraint("Equal", 12, 13),
    Sketcher.Constraint("Horizontal", 4, 3, 5, 3),
    Sketcher.Constraint("Horizontal", 5, 3, 6, 3),
    Sketcher.Constraint("Horizontal", 6, 3, 7, 3),
    Sketcher.Constraint("Horizontal", 7, 3, 8, 3),
    Sketcher.Constraint("Horizontal", 8, 3, 9, 3),
    Sketcher.Constraint("Horizontal", 9, 3, 10, 3),
    Sketcher.Constraint("Horizontal", 10, 3, 11, 3),
    Sketcher.Constraint("Horizontal", 11, 3, 12, 3),
    Sketcher.Constraint("Horizontal", 12, 3, 13, 3),
    Sketcher.Constraint("Diameter", 4, Q("6 mm")),
    Sketcher.Constraint("DistanceX", 1, 1, 1, 2, Q("400 mm")),
    Sketcher.Constraint("DistanceY", 0, 2, 0, 1, Q("65 mm")),
    Sketcher.Constraint("DistanceX", 4, 3, 5, 3, Q("40 mm")),
    Sketcher.Constraint("DistanceX", 5, 3, 6, 3, Q("40 mm")),
    Sketcher.Constraint("DistanceX", 6, 3, 7, 3, Q("40 mm")),
    Sketcher.Constraint("DistanceX", 7, 3, 8, 3, Q("40 mm")),
    Sketcher.Constraint("DistanceX", 8, 3, 9, 3, Q("40 mm")),
    Sketcher.Constraint("DistanceX", 9, 3, 10, 3, Q("40 mm")),
    Sketcher.Constraint("DistanceX", 10, 3, 11, 3, Q("40 mm")),
    Sketcher.Constraint("DistanceX", 11, 3, 12, 3, Q("40 mm")),
    Sketcher.Constraint("DistanceX", 12, 3, 13, 3, Q("40 mm")),
    Sketcher.Constraint("DistanceX", 0, 2, 4, 3, Q("20 mm")),
    Sketcher.Constraint("DistanceY", 0, 2, 4, 3, Q("25 mm")),
    Sketcher.Constraint("DistanceX", 4, 3, -1, 1, Q("44.078732 mm")),
    Sketcher.Constraint("DistanceY", 4, 3, -1, 1, Q("23.289272 mm")),
])
sketch17.setExpression("Constraints[26]", "Params.sketch17_diameter")
sketch17.setExpression("Constraints[27]", "Params.sketch17_width")
sketch17.setExpression("Constraints[28]", "Params.sketch17_height")
pad6 = body.newObject("PartDesign::Pad", "Pad005")
pad6.Profile = sketch17
pad6.setExpression("Length", "Params.pad6_length")

# Sketch on XZ plane
sketch18 = body.newObject("Sketcher::SketchObject", "Sketch017")
sketch18.AttachmentSupport = (doc.getObject("XZ_Plane"), [""])
sketch18.MapMode = "FlatFace"
sketch18.AttachmentOffset = App.Placement(Vector(0, 0, -10), App.Rotation())
sketch18.addGeometry([
    Part.LineSegment(Vector(-64, -48, 0), Vector(-64, 17, 0)),
    Part.LineSegment(Vector(-64, 17, 0), Vector(336, 17, 0)),
    Part.LineSegment(Vector(336, 17, 0), Vector(336, -48, 0)),
    Part.LineSegment(Vector(336, -48, 0), Vector(-64, -48, 0)),
], False)
sketch18.addConstraint([
    Sketcher.Constraint("Coincident", 0, 2, 1, 1),
    Sketcher.Constraint("Coincident", 1, 2, 2, 1),
    Sketcher.Constraint("Coincident", 2, 2, 3, 1),
    Sketcher.Constraint("Coincident", 3, 2, 0, 1),
    Sketcher.Constraint("Vertical", 0),
    Sketcher.Constraint("Horizontal", 1),
    Sketcher.Constraint("Vertical", 2),
    Sketcher.Constraint("Horizontal", 3),
    Sketcher.Constraint("DistanceX", 1, 1, 1, 2, Q("400 mm")),
    Sketcher.Constraint("DistanceY", 0, 1, 0, 2, Q("65 mm")),
    Sketcher.Constraint("DistanceX", 0, 2, -1, 1, Q("64.078732 mm")),
    Sketcher.Constraint("DistanceY", -1, 1, 0, 2, Q("16.710728 mm")),
])
sketch18.setExpression("Constraints[8]", "Params.sketch18_width")
sketch18.setExpression("Constraints[9]", "Params.sketch18_height")
pad7 = body.newObject("PartDesign::Pad", "Pad006")
pad7.Profile = sketch18
pad7.setExpression("Length", "Params.pad7_length")
pad7.Reversed = True
doc.recompute()

fillet3 = body.newObject("PartDesign::Fillet", "Fillet002")
fillet3.Base = (pad7, edges_at(pad7, [
    (335.921, 12.5, 16.711),
    (335.921, 87.5, 16.711),
    (-64.079, 12.5, 16.711),
    (-64.079, 87.5, 16.711),
]))
fillet3.setExpression("Radius", "Params.fillet3_radius")

doc.recompute()
